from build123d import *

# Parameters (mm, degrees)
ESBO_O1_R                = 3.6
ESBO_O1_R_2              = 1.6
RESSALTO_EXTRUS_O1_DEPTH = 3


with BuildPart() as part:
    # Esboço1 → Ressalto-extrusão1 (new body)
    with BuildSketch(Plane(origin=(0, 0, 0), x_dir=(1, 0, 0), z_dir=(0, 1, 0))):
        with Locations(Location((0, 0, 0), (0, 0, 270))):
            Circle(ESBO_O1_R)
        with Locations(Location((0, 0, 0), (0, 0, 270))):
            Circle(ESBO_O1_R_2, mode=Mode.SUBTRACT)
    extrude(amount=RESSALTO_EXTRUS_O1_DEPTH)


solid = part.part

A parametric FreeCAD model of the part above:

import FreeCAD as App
import Part
import Sketcher

V = App.Vector

doc = App.newDocument("Part")
body = doc.addObject("PartDesign::Body", "Body")

sketch1 = body.newObject("Sketcher::SketchObject", "Sketch")
sketch1.AttachmentSupport = (doc.getObject("XZ_Plane"), [""])
sketch1.MapMode = "FlatFace"
sketch1.addGeometry(Part.Circle(V(0, 0, 0), V(0, 0, 1), 3.6), False)
sketch1.addGeometry(Part.Circle(V(0, 0, 0), V(0, 0, 1), 1.6), False)
sketch1.addConstraint(Sketcher.Constraint("Coincident", 0, 3, -1, 1))
sketch1.addConstraint(Sketcher.Constraint("Coincident", 1, 3, -1, 1))
sketch1.addConstraint(Sketcher.Constraint("Diameter", 0, 7.2))
sketch1.addConstraint(Sketcher.Constraint("Diameter", 1, 3.2))
pad1 = body.newObject("PartDesign::Pad", "Pad")
pad1.Profile = sketch1
pad1.Length = 3
pad1.Reversed = True

doc.recompute()
